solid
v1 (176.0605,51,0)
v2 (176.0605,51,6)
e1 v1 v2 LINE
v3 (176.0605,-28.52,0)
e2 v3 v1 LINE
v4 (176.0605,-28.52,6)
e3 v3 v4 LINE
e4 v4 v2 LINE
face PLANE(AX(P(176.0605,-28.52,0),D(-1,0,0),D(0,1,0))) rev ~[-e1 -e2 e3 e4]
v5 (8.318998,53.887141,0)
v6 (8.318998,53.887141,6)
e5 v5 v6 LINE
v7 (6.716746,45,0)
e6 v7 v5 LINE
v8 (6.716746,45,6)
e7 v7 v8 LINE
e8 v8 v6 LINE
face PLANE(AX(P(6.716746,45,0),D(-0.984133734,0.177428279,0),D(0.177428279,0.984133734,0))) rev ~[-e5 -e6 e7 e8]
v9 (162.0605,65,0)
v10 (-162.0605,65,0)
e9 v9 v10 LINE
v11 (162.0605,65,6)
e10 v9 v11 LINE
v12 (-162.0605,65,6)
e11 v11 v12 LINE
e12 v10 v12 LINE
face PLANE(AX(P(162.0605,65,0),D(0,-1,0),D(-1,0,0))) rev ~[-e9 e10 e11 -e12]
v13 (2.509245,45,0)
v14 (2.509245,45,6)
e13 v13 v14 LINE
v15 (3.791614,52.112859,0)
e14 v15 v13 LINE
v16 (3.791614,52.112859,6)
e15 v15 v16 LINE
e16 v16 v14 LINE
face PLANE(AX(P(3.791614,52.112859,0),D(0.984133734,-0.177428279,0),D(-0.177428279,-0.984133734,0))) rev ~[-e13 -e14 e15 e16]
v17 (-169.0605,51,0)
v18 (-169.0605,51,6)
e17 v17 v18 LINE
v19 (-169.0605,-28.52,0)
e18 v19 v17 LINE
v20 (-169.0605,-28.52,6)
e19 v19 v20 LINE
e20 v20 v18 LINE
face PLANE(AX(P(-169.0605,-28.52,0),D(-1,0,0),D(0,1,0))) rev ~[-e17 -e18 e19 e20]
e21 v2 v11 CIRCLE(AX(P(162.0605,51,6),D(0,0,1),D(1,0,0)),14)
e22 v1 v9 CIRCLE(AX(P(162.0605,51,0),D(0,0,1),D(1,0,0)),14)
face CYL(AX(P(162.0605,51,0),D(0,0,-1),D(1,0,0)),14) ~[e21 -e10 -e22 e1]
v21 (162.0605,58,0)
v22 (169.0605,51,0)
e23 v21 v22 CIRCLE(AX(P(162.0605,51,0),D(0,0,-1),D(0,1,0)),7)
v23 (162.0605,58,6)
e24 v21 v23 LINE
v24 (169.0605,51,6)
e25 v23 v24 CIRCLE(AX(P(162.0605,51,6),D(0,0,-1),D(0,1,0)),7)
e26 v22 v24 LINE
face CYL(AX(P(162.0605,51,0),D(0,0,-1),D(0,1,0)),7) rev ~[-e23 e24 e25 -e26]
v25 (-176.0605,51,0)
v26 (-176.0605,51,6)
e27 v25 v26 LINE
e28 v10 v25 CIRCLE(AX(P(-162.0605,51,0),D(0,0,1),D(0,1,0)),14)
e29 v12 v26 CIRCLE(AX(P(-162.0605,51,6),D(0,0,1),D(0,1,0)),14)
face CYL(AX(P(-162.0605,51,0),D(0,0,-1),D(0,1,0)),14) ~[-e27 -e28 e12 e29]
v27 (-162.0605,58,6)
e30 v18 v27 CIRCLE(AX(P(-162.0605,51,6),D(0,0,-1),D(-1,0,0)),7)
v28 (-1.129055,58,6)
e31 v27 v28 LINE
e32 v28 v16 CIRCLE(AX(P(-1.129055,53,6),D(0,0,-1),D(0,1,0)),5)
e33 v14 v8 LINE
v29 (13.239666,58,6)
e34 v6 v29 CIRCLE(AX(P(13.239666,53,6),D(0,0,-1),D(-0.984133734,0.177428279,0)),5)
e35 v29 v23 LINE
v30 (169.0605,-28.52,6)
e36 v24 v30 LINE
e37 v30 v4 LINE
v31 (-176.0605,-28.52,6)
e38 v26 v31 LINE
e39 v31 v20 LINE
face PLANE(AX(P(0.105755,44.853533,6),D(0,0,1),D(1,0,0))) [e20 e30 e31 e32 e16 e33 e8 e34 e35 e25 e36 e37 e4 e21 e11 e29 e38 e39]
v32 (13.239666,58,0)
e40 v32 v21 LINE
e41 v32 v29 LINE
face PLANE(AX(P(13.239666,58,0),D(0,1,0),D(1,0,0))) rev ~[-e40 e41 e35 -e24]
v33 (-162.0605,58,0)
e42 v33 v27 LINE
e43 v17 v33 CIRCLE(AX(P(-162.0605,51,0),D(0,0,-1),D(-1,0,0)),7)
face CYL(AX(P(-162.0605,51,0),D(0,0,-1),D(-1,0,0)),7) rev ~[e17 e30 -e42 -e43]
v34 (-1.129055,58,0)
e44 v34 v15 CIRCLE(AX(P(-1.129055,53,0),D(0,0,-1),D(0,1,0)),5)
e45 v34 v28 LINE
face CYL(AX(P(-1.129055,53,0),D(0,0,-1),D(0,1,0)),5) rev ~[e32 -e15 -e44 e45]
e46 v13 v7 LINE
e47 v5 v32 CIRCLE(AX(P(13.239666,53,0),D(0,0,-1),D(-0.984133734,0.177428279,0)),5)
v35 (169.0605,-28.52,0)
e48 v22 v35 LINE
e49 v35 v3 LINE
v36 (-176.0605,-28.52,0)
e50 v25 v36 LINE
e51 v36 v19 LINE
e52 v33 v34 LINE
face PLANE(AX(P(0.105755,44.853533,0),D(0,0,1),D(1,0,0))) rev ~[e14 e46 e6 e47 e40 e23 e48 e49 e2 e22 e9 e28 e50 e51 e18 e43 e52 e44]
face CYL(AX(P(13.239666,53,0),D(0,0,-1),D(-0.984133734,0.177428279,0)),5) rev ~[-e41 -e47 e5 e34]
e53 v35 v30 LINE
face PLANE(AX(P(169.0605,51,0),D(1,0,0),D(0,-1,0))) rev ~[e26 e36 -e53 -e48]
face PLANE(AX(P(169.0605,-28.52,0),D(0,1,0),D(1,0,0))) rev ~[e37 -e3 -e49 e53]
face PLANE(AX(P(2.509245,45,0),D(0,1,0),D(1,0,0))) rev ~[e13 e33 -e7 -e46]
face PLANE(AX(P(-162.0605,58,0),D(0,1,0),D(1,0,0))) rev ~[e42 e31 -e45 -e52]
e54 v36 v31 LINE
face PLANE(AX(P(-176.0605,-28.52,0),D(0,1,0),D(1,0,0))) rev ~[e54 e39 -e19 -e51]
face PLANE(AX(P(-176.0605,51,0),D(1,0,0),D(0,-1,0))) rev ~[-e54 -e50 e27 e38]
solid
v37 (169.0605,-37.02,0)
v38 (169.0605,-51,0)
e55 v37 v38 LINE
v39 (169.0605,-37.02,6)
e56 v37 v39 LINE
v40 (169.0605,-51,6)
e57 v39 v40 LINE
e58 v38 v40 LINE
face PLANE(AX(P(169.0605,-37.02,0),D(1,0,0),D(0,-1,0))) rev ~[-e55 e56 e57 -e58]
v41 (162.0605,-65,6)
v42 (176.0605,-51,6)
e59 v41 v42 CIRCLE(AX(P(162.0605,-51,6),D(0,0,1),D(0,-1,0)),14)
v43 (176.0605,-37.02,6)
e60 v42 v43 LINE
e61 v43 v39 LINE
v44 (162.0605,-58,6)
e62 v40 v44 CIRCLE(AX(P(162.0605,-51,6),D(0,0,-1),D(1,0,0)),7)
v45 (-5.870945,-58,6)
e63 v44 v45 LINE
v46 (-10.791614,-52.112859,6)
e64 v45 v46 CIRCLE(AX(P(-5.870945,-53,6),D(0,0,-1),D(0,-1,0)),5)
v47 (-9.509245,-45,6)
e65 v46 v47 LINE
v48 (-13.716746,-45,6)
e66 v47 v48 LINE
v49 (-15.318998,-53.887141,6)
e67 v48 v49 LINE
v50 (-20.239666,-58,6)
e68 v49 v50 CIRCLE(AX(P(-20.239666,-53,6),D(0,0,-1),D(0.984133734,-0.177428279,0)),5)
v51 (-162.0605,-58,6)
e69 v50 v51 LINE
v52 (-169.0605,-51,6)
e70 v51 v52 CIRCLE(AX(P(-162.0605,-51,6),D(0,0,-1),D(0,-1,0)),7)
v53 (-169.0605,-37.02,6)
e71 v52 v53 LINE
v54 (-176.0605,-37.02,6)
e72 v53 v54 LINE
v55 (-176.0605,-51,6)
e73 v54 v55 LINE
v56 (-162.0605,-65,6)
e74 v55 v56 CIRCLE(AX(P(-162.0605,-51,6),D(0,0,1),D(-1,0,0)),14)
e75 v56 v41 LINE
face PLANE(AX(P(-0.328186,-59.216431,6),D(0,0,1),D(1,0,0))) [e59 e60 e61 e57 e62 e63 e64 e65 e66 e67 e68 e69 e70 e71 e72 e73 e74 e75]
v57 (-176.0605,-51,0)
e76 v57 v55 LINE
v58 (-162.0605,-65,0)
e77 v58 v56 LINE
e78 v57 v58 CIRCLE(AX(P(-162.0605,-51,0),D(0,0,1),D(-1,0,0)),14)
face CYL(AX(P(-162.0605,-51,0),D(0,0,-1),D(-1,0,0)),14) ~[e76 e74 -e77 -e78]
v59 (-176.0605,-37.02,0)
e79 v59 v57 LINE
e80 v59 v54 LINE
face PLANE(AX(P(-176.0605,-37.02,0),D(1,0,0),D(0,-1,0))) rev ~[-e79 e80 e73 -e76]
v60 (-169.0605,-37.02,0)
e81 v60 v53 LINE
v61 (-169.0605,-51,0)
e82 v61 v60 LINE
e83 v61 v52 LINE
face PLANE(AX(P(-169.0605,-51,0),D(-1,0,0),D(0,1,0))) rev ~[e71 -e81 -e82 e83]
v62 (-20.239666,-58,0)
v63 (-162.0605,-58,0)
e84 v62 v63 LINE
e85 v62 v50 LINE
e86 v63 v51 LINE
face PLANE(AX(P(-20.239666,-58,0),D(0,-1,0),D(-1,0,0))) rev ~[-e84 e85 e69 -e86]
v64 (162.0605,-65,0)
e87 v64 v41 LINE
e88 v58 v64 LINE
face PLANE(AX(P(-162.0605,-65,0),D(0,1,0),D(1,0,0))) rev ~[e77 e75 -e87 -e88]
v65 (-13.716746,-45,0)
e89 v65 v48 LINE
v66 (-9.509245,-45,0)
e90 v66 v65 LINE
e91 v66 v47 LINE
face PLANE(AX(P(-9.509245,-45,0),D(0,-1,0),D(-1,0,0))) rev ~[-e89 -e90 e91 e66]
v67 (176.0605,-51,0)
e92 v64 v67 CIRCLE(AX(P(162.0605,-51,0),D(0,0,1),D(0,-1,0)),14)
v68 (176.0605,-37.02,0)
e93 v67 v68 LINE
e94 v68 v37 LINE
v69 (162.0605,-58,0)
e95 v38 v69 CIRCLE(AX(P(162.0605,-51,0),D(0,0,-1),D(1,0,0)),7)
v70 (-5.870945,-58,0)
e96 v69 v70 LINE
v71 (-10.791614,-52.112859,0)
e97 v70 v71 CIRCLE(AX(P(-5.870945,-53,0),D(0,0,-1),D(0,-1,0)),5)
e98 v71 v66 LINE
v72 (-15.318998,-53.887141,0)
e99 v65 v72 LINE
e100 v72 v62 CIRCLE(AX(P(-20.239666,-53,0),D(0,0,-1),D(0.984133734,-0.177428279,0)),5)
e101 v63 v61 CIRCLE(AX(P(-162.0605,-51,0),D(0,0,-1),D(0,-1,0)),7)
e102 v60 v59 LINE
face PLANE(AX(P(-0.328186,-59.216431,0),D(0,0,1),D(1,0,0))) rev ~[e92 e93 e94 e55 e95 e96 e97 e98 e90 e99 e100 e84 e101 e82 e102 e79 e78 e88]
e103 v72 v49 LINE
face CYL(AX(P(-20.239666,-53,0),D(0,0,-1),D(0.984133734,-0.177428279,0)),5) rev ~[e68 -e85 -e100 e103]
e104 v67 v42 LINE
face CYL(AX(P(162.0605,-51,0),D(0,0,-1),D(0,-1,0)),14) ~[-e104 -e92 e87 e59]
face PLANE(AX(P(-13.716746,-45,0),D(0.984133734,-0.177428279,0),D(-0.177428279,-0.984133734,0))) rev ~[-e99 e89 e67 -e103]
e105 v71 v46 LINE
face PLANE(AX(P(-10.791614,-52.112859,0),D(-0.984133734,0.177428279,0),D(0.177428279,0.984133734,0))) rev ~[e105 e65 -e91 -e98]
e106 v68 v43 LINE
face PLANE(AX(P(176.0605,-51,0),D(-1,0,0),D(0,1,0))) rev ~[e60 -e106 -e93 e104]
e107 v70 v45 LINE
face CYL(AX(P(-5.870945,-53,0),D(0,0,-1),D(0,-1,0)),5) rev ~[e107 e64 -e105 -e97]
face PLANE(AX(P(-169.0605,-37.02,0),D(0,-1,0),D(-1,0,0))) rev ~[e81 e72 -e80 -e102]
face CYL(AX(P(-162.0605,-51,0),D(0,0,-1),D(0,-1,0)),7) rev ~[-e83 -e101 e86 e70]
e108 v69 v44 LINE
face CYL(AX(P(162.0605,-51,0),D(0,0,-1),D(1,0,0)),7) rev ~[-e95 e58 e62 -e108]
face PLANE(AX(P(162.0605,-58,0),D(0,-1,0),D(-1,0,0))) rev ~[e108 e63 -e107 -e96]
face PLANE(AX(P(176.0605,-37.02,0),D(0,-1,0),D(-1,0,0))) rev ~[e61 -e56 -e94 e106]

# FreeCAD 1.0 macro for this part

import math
import FreeCAD as App
import Part
import Sketcher
from FreeCAD import Vector
Q = App.Units.Quantity

doc = App.newDocument("Part")
body = doc.addObject("PartDesign::Body", "Body")

# Sketch on XY plane
sketch1 = body.newObject("Sketcher::SketchObject", "Sketch")
sketch1.AttachmentSupport = (doc.getObject("XY_Plane"), [""])
sketch1.MapMode = "FlatFace"
sketch1.addGeometry([
    Part.LineSegment(Vector(-162.0605, 58, 0), Vector(-1.129055, 58, 0)),  # 0
    Part.ArcOfCircle(Part.Circle(Vector(-1.129055, 53, 0), Vector(0, 0, 1), 5), math.radians(-10.22), math.radians(90)),  # 1
    Part.LineSegment(Vector(3.791614, 52.112859, 0), Vector(2.509245, 45, 0)),  # 2
    Part.LineSegment(Vector(2.509245, 45, 0), Vector(6.716746, 45, 0)),  # 3
    Part.LineSegment(Vector(6.716746, 45, 0), Vector(8.318998, 53.887141, 0)),  # 4
    Part.ArcOfCircle(Part.Circle(Vector(13.239666, 53, 0), Vector(0, 0, 1), 5), math.radians(90), math.radians(169.78)),  # 5
    Part.LineSegment(Vector(13.239666, 58, 0), Vector(162.0605, 58, 0)),  # 6
    Part.ArcOfCircle(Part.Circle(Vector(162.0605, 51, 0), Vector(0, 0, 1), 7), math.radians(0), math.radians(90)),  # 7
    Part.LineSegment(Vector(169.0605, 51, 0), Vector(169.0605, -28.52, 0)),  # 8
    Part.LineSegment(Vector(169.0605, -28.52, 0), Vector(176.0605, -28.52, 0)),  # 9
    Part.LineSegment(Vector(176.0605, -28.52, 0), Vector(176.0605, 51, 0)),  # 10
    Part.ArcOfCircle(Part.Circle(Vector(162.0605, 51, 0), Vector(0, 0, 1), 14), math.radians(0), math.radians(90)),  # 11
    Part.LineSegment(Vector(162.0605, 65, 0), Vector(-162.0605, 65, 0)),  # 12
    Part.ArcOfCircle(Part.Circle(Vector(-162.0605, 51, 0), Vector(0, 0, 1), 14), math.radians(90), math.radians(180)),  # 13
    Part.LineSegment(Vector(-176.0605, 51, 0), Vector(-176.0605, -28.52, 0)),  # 14
    Part.LineSegment(Vector(-176.0605, -28.52, 0), Vector(-169.0605, -28.52, 0)),  # 15
    Part.LineSegment(Vector(-169.0605, -28.52, 0), Vector(-169.0605, 51, 0)),  # 16
    Part.ArcOfCircle(Part.Circle(Vector(-162.0605, 51, 0), Vector(0, 0, 1), 7), math.radians(90), math.radians(180)),  # 17
], False)
sketch1.addConstraint([
    Sketcher.Constraint("Tangent", 0, 2, 1, 2),
    Sketcher.Constraint("Tangent", 1, 1, 2, 1),
    Sketcher.Constraint("Coincident", 2, 2, 3, 1),
    Sketcher.Constraint("Coincident", 3, 2, 4, 1),
    Sketcher.Constraint("Tangent", 4, 2, 5, 2),
    Sketcher.Constraint("Tangent", 5, 1, 6, 1),
    Sketcher.Constraint("Tangent", 6, 2, 7, 2),
    Sketcher.Constraint("Tangent", 7, 1, 8, 1),
    Sketcher.Constraint("Coincident", 8, 2, 9, 1),
    Sketcher.Constraint("Coincident", 9, 2, 10, 1),
    Sketcher.Constraint("Tangent", 10, 2, 11, 1),
    Sketcher.Constraint("Tangent", 11, 2, 12, 1),
    Sketcher.Constraint("Tangent", 12, 2, 13, 1),
    Sketcher.Constraint("Tangent", 13, 2, 14, 1),
    Sketcher.Constraint("Coincident", 14, 2, 15, 1),
    Sketcher.Constraint("Coincident", 15, 2, 16, 1),
    Sketcher.Constraint("Tangent", 16, 2, 17, 2),
    Sketcher.Constraint("Tangent", 17, 1, 0, 1),
    Sketcher.Constraint("Horizontal", 0),
    Sketcher.Constraint("Horizontal", 3),
    Sketcher.Constraint("Horizontal", 6),
    Sketcher.Constraint("Vertical", 8),
    Sketcher.Constraint("Horizontal", 9),
    Sketcher.Constraint("Vertical", 10),
    Sketcher.Constraint("Horizontal", 12),
    Sketcher.Constraint("Vertical", 14),
    Sketcher.Constraint("Horizontal", 15),
    Sketcher.Constraint("Vertical", 16),
    Sketcher.Constraint("Coincident", 11, 3, 7, 3),
    Sketcher.Constraint("Coincident", 17, 3, 13, 3),
    Sketcher.Constraint("Equal", 1, 5),
    Sketcher.Constraint("Equal", 11, 13),
    Sketcher.Constraint("Equal", 7, 17),
    Sketcher.Constraint("Symmetric", 9, 2, 14, 2, -2),
    Sketcher.Constraint("Parallel", 2, 4),
    Sketcher.Constraint("Radius", 1, 5.0),
    Sketcher.Constraint("Radius", 7, 7.0),
    Sketcher.Constraint("Radius", 11, 14.0),
    Sketcher.Constraint("DistanceY", -1, 1, 1, 3, 53.0),
    Sketcher.Constraint("DistanceY", -1, 1, 2, 2, 45.0),
    Sketcher.Constraint("DistanceY", 8, 2, 8, 1, 79.52),
    Sketcher.Constraint("Angle", 2, Q("-100.22 deg")),
    Sketcher.Constraint("DistanceX", 12, 2, 12, 1, 324.121),
    Sketcher.Constraint("DistanceX", 3, 1, 3, 2, 4.207501),
    Sketcher.Constraint("DistanceX", 0, 1, 0, 2, 160.931445),
])
pad1 = body.newObject("PartDesign::Pad", "Pad")
pad1.Profile = sketch1
pad1.Length = 6
body2 = doc.addObject("PartDesign::Body", "Body001")

# Sketch on XY plane
sketch2 = body2.newObject("Sketcher::SketchObject", "Sketch001")
sketch2.AttachmentSupport = (doc.getObject("XY_Plane001"), [""])
sketch2.MapMode = "FlatFace"
sketch2.addGeometry([
    Part.LineSegment(Vector(-162.0605, -65, 0), Vector(162.0605, -65, 0)),  # 0
    Part.ArcOfCircle(Part.Circle(Vector(162.0605, -51, 0), Vector(0, 0, 1), 14), math.radians(-90), math.radians(0)),  # 1
    Part.LineSegment(Vector(176.0605, -51, 0), Vector(176.0605, -37.02, 0)),  # 2
    Part.LineSegment(Vector(176.0605, -37.02, 0), Vector(169.0605, -37.02, 0)),  # 3
    Part.LineSegment(Vector(169.0605, -37.02, 0), Vector(169.0605, -51, 0)),  # 4
    Part.ArcOfCircle(Part.Circle(Vector(162.0605, -51, 0), Vector(0, 0, 1), 7), math.radians(-90), math.radians(0)),  # 5
    Part.LineSegment(Vector(162.0605, -58, 0), Vector(-5.870945, -58, 0)),  # 6
    Part.ArcOfCircle(Part.Circle(Vector(-5.870945, -53, 0), Vector(0, 0, 1), 5), math.radians(169.78), math.radians(270)),  # 7
    Part.LineSegment(Vector(-10.791614, -52.112859, 0), Vector(-9.509245, -45, 0)),  # 8
    Part.LineSegment(Vector(-9.509245, -45, 0), Vector(-13.716746, -45, 0)),  # 9
    Part.LineSegment(Vector(-13.716746, -45, 0), Vector(-15.318998, -53.887141, 0)),  # 10
    Part.ArcOfCircle(Part.Circle(Vector(-20.239666, -53, 0), Vector(0, 0, 1), 5), math.radians(-90), math.radians(-10.22)),  # 11
    Part.LineSegment(Vector(-20.239666, -58, 0), Vector(-162.0605, -58, 0)),  # 12
    Part.ArcOfCircle(Part.Circle(Vector(-162.0605, -51, 0), Vector(0, 0, 1), 7), math.radians(-180), math.radians(-90)),  # 13
    Part.LineSegment(Vector(-169.0605, -51, 0), Vector(-169.0605, -37.02, 0)),  # 14
    Part.LineSegment(Vector(-169.0605, -37.02, 0), Vector(-176.0605, -37.02, 0)),  # 15
    Part.LineSegment(Vector(-176.0605, -37.02, 0), Vector(-176.0605, -51, 0)),  # 16
    Part.ArcOfCircle(Part.Circle(Vector(-162.0605, -51, 0), Vector(0, 0, 1), 14), math.radians(180), math.radians(270)),  # 17
], False)
sketch2.addConstraint([
    Sketcher.Constraint("Tangent", 0, 2, 1, 1),
    Sketcher.Constraint("Tangent", 1, 2, 2, 1),
    Sketcher.Constraint("Coincident", 2, 2, 3, 1),
    Sketcher.Constraint("Coincident", 3, 2, 4, 1),
    Sketcher.Constraint("Tangent", 4, 2, 5, 2),
    Sketcher.Constraint("Tangent", 5, 1, 6, 1),
    Sketcher.Constraint("Tangent", 6, 2, 7, 2),
    Sketcher.Constraint("Tangent", 7, 1, 8, 1),
    Sketcher.Constraint("Coincident", 8, 2, 9, 1),
    Sketcher.Constraint("Coincident", 9, 2, 10, 1),
    Sketcher.Constraint("Tangent", 10, 2, 11, 2),
    Sketcher.Constraint("Tangent", 11, 1, 12, 1),
    Sketcher.Constraint("Tangent", 12, 2, 13, 2),
    Sketcher.Constraint("Tangent", 13, 1, 14, 1),
    Sketcher.Constraint("Coincident", 14, 2, 15, 1),
    Sketcher.Constraint("Coincident", 15, 2, 16, 1),
    Sketcher.Constraint("Tangent", 16, 2, 17, 1),
    Sketcher.Constraint("Tangent", 17, 2, 0, 1),
    Sketcher.Constraint("Horizontal", 0),
    Sketcher.Constraint("Vertical", 2),
    Sketcher.Constraint("Horizontal", 3),
    Sketcher.Constraint("Vertical", 4),
    Sketcher.Constraint("Horizontal", 6),
    Sketcher.Constraint("Horizontal", 9),
    Sketcher.Constraint("Horizontal", 12),
    Sketcher.Constraint("Vertical", 14),
    Sketcher.Constraint("Horizontal", 15),
    Sketcher.Constraint("Vertical", 16),
    Sketcher.Constraint("Coincident", 5, 3, 1, 3),
    Sketcher.Constraint("Coincident", 17, 3, 13, 3),
    Sketcher.Constraint("Equal", 7, 11),
    Sketcher.Constraint("Equal", 5, 13),
    Sketcher.Constraint("Equal", 1, 17),
    Sketcher.Constraint("Symmetric", 3, 2, 14, 2, -2),
    Sketcher.Constraint("Parallel", 8, 10),
    Sketcher.Constraint("Radius", 1, 14.0),
    Sketcher.Constraint("Radius", 5, 7.0),
    Sketcher.Constraint("Radius", 7, 5.0),
    Sketcher.Constraint("DistanceY", 1, 3, -1, 1, 51.0),
    Sketcher.Constraint("DistanceY", 8, 2, -1, 1, 45.0),
    Sketcher.Constraint("DistanceY", 2, 1, 2, 2, 13.98),
    Sketcher.Constraint("Angle", 8, Q("79.78 deg")),
    Sketcher.Constraint("DistanceX", 0, 1, 0, 2, 324.121),
    Sketcher.Constraint("DistanceX", 9, 2, 9, 1, 4.207501),
    Sketcher.Constraint("DistanceX", 6, 2, 6, 1, 167.931445),
])
pad2 = body2.newObject("PartDesign::Pad", "Pad001")
pad2.Profile = sketch2
pad2.Length = 6

doc.recompute()
